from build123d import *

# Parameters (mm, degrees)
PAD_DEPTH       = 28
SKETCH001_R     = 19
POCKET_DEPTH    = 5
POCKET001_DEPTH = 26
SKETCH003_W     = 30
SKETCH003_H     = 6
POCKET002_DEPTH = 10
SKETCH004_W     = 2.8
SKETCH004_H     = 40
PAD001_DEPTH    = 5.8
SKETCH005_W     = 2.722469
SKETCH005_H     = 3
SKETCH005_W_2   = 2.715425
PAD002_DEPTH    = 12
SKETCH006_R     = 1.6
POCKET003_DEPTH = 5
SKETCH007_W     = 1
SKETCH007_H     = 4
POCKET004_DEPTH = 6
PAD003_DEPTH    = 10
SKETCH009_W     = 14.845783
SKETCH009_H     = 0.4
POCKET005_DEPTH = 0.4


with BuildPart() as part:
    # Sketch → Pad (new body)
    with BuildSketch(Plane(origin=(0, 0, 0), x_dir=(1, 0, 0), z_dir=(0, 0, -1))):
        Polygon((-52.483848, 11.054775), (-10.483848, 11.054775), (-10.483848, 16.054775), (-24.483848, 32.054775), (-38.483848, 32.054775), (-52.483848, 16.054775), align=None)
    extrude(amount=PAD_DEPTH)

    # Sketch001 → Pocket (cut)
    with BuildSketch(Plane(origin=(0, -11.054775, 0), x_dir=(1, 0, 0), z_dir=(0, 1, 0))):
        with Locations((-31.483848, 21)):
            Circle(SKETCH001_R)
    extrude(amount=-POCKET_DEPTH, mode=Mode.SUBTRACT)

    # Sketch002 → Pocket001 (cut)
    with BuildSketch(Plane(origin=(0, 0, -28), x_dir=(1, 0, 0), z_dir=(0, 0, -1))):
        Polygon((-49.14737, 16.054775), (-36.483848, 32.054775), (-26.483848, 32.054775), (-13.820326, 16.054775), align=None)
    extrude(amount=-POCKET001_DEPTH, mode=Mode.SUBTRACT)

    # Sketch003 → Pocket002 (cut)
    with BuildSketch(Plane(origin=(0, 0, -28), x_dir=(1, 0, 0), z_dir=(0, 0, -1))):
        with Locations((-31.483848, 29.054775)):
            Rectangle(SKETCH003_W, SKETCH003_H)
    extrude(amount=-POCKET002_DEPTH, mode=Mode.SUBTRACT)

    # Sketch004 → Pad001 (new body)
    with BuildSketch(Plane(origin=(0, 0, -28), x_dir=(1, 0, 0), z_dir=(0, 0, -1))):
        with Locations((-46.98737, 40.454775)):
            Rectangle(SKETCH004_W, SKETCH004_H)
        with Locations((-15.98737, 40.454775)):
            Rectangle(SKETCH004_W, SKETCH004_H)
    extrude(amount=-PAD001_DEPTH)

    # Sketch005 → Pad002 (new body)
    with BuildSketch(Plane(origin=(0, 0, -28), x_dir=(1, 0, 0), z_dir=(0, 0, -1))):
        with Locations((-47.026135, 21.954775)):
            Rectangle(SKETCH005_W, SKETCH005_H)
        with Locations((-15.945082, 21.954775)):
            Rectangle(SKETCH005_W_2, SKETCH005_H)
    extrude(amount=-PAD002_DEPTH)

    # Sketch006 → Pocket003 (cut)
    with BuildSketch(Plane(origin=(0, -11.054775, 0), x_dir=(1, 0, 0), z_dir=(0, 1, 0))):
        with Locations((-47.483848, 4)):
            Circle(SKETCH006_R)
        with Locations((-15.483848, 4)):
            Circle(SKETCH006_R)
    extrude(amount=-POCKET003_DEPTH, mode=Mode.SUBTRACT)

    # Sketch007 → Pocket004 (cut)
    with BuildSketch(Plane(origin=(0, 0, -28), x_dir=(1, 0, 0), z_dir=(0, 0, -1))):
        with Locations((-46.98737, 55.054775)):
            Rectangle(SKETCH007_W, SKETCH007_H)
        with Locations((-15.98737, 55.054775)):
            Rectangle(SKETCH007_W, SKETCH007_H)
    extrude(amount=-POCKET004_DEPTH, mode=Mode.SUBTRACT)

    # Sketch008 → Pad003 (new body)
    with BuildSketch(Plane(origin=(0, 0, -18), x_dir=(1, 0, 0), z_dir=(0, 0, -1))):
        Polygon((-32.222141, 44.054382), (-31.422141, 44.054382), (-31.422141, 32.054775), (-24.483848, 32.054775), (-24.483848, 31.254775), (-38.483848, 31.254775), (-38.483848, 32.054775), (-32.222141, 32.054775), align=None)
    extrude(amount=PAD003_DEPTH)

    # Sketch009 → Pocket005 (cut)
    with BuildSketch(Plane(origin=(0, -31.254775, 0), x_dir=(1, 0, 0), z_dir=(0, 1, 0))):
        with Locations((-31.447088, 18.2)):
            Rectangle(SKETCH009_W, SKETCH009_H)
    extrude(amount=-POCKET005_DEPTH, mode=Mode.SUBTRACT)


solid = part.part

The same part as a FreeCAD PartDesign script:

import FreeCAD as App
import Part
import Sketcher
from FreeCAD import Vector
Q = App.Units.Quantity

doc = App.newDocument("Part")
body = doc.addObject("PartDesign::Body", "Body")

sketch1 = body.newObject("Sketcher::SketchObject", "Sketch")
sketch1.AttachmentSupport = (doc.getObject("XY_Plane"), [""])
sketch1.MapMode = "FlatFace"
sketch1.addGeometry(Part.LineSegment(Vector(-52, -11, 0), Vector(-10, -11, 0)), False)
sketch1.addGeometry(Part.LineSegment(Vector(-10, -11, 0), Vector(-10, -16, 0)), False)
sketch1.addGeometry(Part.LineSegment(Vector(-10, -16, 0), Vector(-24, -32, 0)), False)
sketch1.addGeometry(Part.LineSegment(Vector(-24, -32, 0), Vector(-38, -32, 0)), False)
sketch1.addGeometry(Part.LineSegment(Vector(-38, -32, 0), Vector(-52, -16, 0)), False)
sketch1.addGeometry(Part.LineSegment(Vector(-52, -16, 0), Vector(-52, -11, 0)), False)
sketch1.addConstraint(Sketcher.Constraint("Coincident", 0, 2, 1, 1))
sketch1.addConstraint(Sketcher.Constraint("Coincident", 1, 2, 2, 1))
sketch1.addConstraint(Sketcher.Constraint("Coincident", 2, 2, 3, 1))
sketch1.addConstraint(Sketcher.Constraint("Coincident", 3, 2, 4, 1))
sketch1.addConstraint(Sketcher.Constraint("Coincident", 4, 2, 5, 1))
sketch1.addConstraint(Sketcher.Constraint("Coincident", 5, 2, 0, 1))
sketch1.addConstraint(Sketcher.Constraint("Horizontal", 0))
sketch1.addConstraint(Sketcher.Constraint("Vertical", 1))
sketch1.addConstraint(Sketcher.Constraint("Horizontal", 3))
sketch1.addConstraint(Sketcher.Constraint("Vertical", 5))
sketch1.addConstraint(Sketcher.Constraint("Horizontal", 1, 2, 4, 2))
sketch1.addConstraint(Sketcher.Constraint("Equal", 2, 4))
sketch1.addConstraint(Sketcher.Constraint("DistanceX", 0, 1, 0, 2, Q("42 mm")))
sketch1.addConstraint(Sketcher.Constraint("DistanceX", 3, 2, 3, 1, Q("14 mm")))
sketch1.addConstraint(Sketcher.Constraint("DistanceY", 1, 2, 1, 1, Q("5 mm")))
sketch1.addConstraint(Sketcher.Constraint("DistanceY", 2, 2, 1, 2, Q("16 mm")))
sketch1.addConstraint(Sketcher.Constraint("DistanceX", 3, 2, -1, 1, Q("38.483848 mm")))
sketch1.addConstraint(Sketcher.Constraint("DistanceY", 0, 2, -1, 1, Q("11.054775 mm")))
pad1 = body.newObject("PartDesign::Pad", "Pad")
pad1.Profile = sketch1
pad1.Length = 28
pad1.Reversed = True

sketch2 = body.newObject("Sketcher::SketchObject", "Sketch001")
sketch2.AttachmentSupport = (doc.getObject("XZ_Plane"), [""])
sketch2.MapMode = "FlatFace"
sketch2.AttachmentOffset = App.Placement(Vector(0, 0, 11.054775), App.Rotation())
sketch2.addGeometry(Part.Circle(Vector(-31, -21, 0), Vector(0, 0, 1), 19), False)
sketch2.addConstraint(Sketcher.Constraint("Diameter", 0, Q("38 mm")))
sketch2.addConstraint(Sketcher.Constraint("DistanceY", 0, 3, -1, 1, Q("21 mm")))
sketch2.addConstraint(Sketcher.Constraint("DistanceX", 0, 3, -1, 1, Q("31.483848 mm")))
pocket1 = body.newObject("PartDesign::Pocket", "Pocket")
pocket1.Profile = sketch2
pocket1.Length = 5
pocket1.Reversed = True

sketch3 = body.newObject("Sketcher::SketchObject", "Sketch002")
sketch3.AttachmentSupport = (doc.getObject("XY_Plane"), [""])
sketch3.MapMode = "FlatFace"
sketch3.AttachmentOffset = App.Placement(Vector(0, 0, -28), App.Rotation())
sketch3.addGeometry(Part.LineSegment(Vector(-36, -32, 0), Vector(-49, -16, 0)), False)
sketch3.addGeometry(Part.LineSegment(Vector(-49, -16, 0), Vector(-14, -16, 0)), False)
sketch3.addGeometry(Part.LineSegment(Vector(-14, -16, 0), Vector(-26, -32, 0)), False)
sketch3.addGeometry(Part.LineSegment(Vector(-26, -32, 0), Vector(-36, -32, 0)), False)
sketch3.addConstraint(Sketcher.Constraint("Coincident", 0, 2, 1, 1))
sketch3.addConstraint(Sketcher.Constraint("Coincident", 1, 2, 2, 1))
sketch3.addConstraint(Sketcher.Constraint("Coincident", 2, 2, 3, 1))
sketch3.addConstraint(Sketcher.Constraint("Coincident", 3, 2, 0, 1))
sketch3.addConstraint(Sketcher.Constraint("Horizontal", 1))
sketch3.addConstraint(Sketcher.Constraint("Horizontal", 3))
sketch3.addConstraint(Sketcher.Constraint("Equal", 0, 2))
sketch3.addConstraint(Sketcher.Constraint("DistanceX", 3, 2, 3, 1, Q("10 mm")))
sketch3.addConstraint(Sketcher.Constraint("DistanceY", 2, 2, 1, 2, Q("16 mm")))
sketch3.addConstraint(Sketcher.Constraint("Distance", 0, Q("20.405019 mm")))
sketch3.addConstraint(Sketcher.Constraint("DistanceX", 0, 2, -1, 1, Q("49.14737 mm")))
sketch3.addConstraint(Sketcher.Constraint("DistanceY", 0, 2, -1, 1, Q("16.054775 mm")))
pocket2 = body.newObject("PartDesign::Pocket", "Pocket001")
pocket2.Profile = sketch3
pocket2.Length = 26
pocket2.Reversed = True

sketch4 = body.newObject("Sketcher::SketchObject", "Sketch003")
sketch4.AttachmentSupport = (doc.getObject("XY_Plane"), [""])
sketch4.MapMode = "FlatFace"
sketch4.AttachmentOffset = App.Placement(Vector(0, 0, -28), App.Rotation())
sketch4.addGeometry(Part.LineSegment(Vector(-46, -32, 0), Vector(-46, -26, 0)), False)
sketch4.addGeometry(Part.LineSegment(Vector(-46, -26, 0), Vector(-16, -26, 0)), False)
sketch4.addGeometry(Part.LineSegment(Vector(-16, -26, 0), Vector(-16, -32, 0)), False)
sketch4.addGeometry(Part.LineSegment(Vector(-16, -32, 0), Vector(-46, -32, 0)), False)
sketch4.addConstraint(Sketcher.Constraint("Coincident", 0, 2, 1, 1))
sketch4.addConstraint(Sketcher.Constraint("Coincident", 1, 2, 2, 1))
sketch4.addConstraint(Sketcher.Constraint("Coincident", 2, 2, 3, 1))
sketch4.addConstraint(Sketcher.Constraint("Coincident", 3, 2, 0, 1))
sketch4.addConstraint(Sketcher.Constraint("Vertical", 0))
sketch4.addConstraint(Sketcher.Constraint("Horizontal", 1))
sketch4.addConstraint(Sketcher.Constraint("Vertical", 2))
sketch4.addConstraint(Sketcher.Constraint("Horizontal", 3))
sketch4.addConstraint(Sketcher.Constraint("DistanceX", 1, 1, 1, 2, Q("30 mm")))
sketch4.addConstraint(Sketcher.Constraint("DistanceY", 0, 1, 0, 2, Q("6 mm")))
sketch4.addConstraint(Sketcher.Constraint("DistanceX", 0, 2, -1, 1, Q("46.483848 mm")))
sketch4.addConstraint(Sketcher.Constraint("DistanceY", 0, 2, -1, 1, Q("26.054775 mm")))
pocket3 = body.newObject("PartDesign::Pocket", "Pocket002")
pocket3.Profile = sketch4
pocket3.Length = 10
pocket3.Reversed = True

sketch5 = body.newObject("Sketcher::SketchObject", "Sketch004")
sketch5.AttachmentSupport = (doc.getObject("XY_Plane"), [""])
sketch5.MapMode = "FlatFace"
sketch5.AttachmentOffset = App.Placement(Vector(0, 0, -28), App.Rotation())
sketch5.addGeometry(Part.LineSegment(Vector(-48.4, -60.5, 0), Vector(-48.4, -20.5, 0)), False)
sketch5.addGeometry(Part.LineSegment(Vector(-48.4, -20.5, 0), Vector(-45.6, -20.5, 0)), False)
sketch5.addGeometry(Part.LineSegment(Vector(-45.6, -20.5, 0), Vector(-45.6, -60.5, 0)), False)
sketch5.addGeometry(Part.LineSegment(Vector(-45.6, -60.5, 0), Vector(-48.4, -60.5, 0)), False)
sketch5.addGeometry(Part.LineSegment(Vector(-17.4, -60.5, 0), Vector(-17.4, -20.5, 0)), False)
sketch5.addGeometry(Part.LineSegment(Vector(-17.4, -20.5, 0), Vector(-14.6, -20.5, 0)), False)
sketch5.addGeometry(Part.LineSegment(Vector(-14.6, -20.5, 0), Vector(-14.6, -60.5, 0)), False)
sketch5.addGeometry(Part.LineSegment(Vector(-14.6, -60.5, 0), Vector(-17.4, -60.5, 0)), False)
sketch5.addConstraint(Sketcher.Constraint("Coincident", 0, 2, 1, 1))
sketch5.addConstraint(Sketcher.Constraint("Coincident", 1, 2, 2, 1))
sketch5.addConstraint(Sketcher.Constraint("Coincident", 2, 2, 3, 1))
sketch5.addConstraint(Sketcher.Constraint("Coincident", 3, 2, 0, 1))
sketch5.addConstraint(Sketcher.Constraint("Coincident", 4, 2, 5, 1))
sketch5.addConstraint(Sketcher.Constraint("Coincident", 5, 2, 6, 1))
sketch5.addConstraint(Sketcher.Constraint("Coincident", 6, 2, 7, 1))
sketch5.addConstraint(Sketcher.Constraint("Coincident", 7, 2, 4, 1))
sketch5.addConstraint(Sketcher.Constraint("Vertical", 0))
sketch5.addConstraint(Sketcher.Constraint("Horizontal", 1))
sketch5.addConstraint(Sketcher.Constraint("Vertical", 2))
sketch5.addConstraint(Sketcher.Constraint("Horizontal", 3))
sketch5.addConstraint(Sketcher.Constraint("Vertical", 4))
sketch5.addConstraint(Sketcher.Constraint("Horizontal", 5))
sketch5.addConstraint(Sketcher.Constraint("Vertical", 6))
sketch5.addConstraint(Sketcher.Constraint("Horizontal", 7))
sketch5.addConstraint(Sketcher.Constraint("Horizontal", 1, 2, 4, 2))
sketch5.addConstraint(Sketcher.Constraint("Horizontal", 3, 2, 6, 2))
sketch5.addConstraint(Sketcher.Constraint("Equal", 3, 5))
sketch5.addConstraint(Sketcher.Constraint("DistanceY", 0, 1, 0, 2, Q("40 mm")))
sketch5.addConstraint(Sketcher.Constraint("DistanceX", 1, 1, 1, 2, Q("2.8 mm")))
sketch5.addConstraint(Sketcher.Constraint("DistanceX", 0, 2, 4, 2, Q("31 mm")))
sketch5.addConstraint(Sketcher.Constraint("DistanceX", 0, 2, -1, 1, Q("48.38737 mm")))
sketch5.addConstraint(Sketcher.Constraint("DistanceY", 0, 2, -1, 1, Q("20.454775 mm")))
pad2 = body.newObject("PartDesign::Pad", "Pad001")
pad2.Profile = sketch5
pad2.Length = 5.8

sketch6 = body.newObject("Sketcher::SketchObject", "Sketch005")
sketch6.AttachmentSupport = (doc.getObject("XY_Plane"), [""])
sketch6.MapMode = "FlatFace"
sketch6.AttachmentOffset = App.Placement(Vector(0, 0, -28), App.Rotation())
sketch6.addGeometry(Part.LineSegment(Vector(-48.4, -23.5, 0), Vector(-48.4, -20.5, 0)), False)
sketch6.addGeometry(Part.LineSegment(Vector(-48.4, -20.5, 0), Vector(-45.7, -20.5, 0)), False)
sketch6.addGeometry(Part.LineSegment(Vector(-45.7, -20.5, 0), Vector(-45.7, -23.5, 0)), False)
sketch6.addGeometry(Part.LineSegment(Vector(-45.7, -23.5, 0), Vector(-48.4, -23.5, 0)), False)
sketch6.addGeometry(Part.LineSegment(Vector(-17.3, -23.5, 0), Vector(-17.3, -20.5, 0)), False)
sketch6.addGeometry(Part.LineSegment(Vector(-17.3, -20.5, 0), Vector(-14.6, -20.5, 0)), False)
sketch6.addGeometry(Part.LineSegment(Vector(-14.6, -20.5, 0), Vector(-14.6, -23.5, 0)), False)
sketch6.addGeometry(Part.LineSegment(Vector(-14.6, -23.5, 0), Vector(-17.3, -23.5, 0)), False)
sketch6.addConstraint(Sketcher.Constraint("Coincident", 0, 2, 1, 1))
sketch6.addConstraint(Sketcher.Constraint("Coincident", 1, 2, 2, 1))
sketch6.addConstraint(Sketcher.Constraint("Coincident", 2, 2, 3, 1))
sketch6.addConstraint(Sketcher.Constraint("Coincident", 3, 2, 0, 1))
sketch6.addConstraint(Sketcher.Constraint("Coincident", 4, 2, 5, 1))
sketch6.addConstraint(Sketcher.Constraint("Coincident", 5, 2, 6, 1))
sketch6.addConstraint(Sketcher.Constraint("Coincident", 6, 2, 7, 1))
sketch6.addConstraint(Sketcher.Constraint("Coincident", 7, 2, 4, 1))
sketch6.addConstraint(Sketcher.Constraint("Vertical", 0))
sketch6.addConstraint(Sketcher.Constraint("Horizontal", 1))
sketch6.addConstraint(Sketcher.Constraint("Vertical", 2))
sketch6.addConstraint(Sketcher.Constraint("Horizontal", 3))
sketch6.addConstraint(Sketcher.Constraint("Vertical", 4))
sketch6.addConstraint(Sketcher.Constraint("Horizontal", 5))
sketch6.addConstraint(Sketcher.Constraint("Vertical", 6))
sketch6.addConstraint(Sketcher.Constraint("Horizontal", 7))
sketch6.addConstraint(Sketcher.Constraint("Horizontal", 1, 2, 4, 2))
sketch6.addConstraint(Sketcher.Constraint("Horizontal", 3, 2, 6, 2))
sketch6.addConstraint(Sketcher.Constraint("DistanceY", 0, 1, 0, 2, Q("3 mm")))
sketch6.addConstraint(Sketcher.Constraint("DistanceX", 0, 2, 5, 2, Q("33.8 mm")))
sketch6.addConstraint(Sketcher.Constraint("DistanceX", 1, 1, 1, 2, Q("2.722469 mm")))
sketch6.addConstraint(Sketcher.Constraint("DistanceX", 1, 2, -1, 1, Q("45.664901 mm")))
sketch6.addConstraint(Sketcher.Constraint("DistanceX", 5, 1, 5, 2, Q("2.715425 mm")))
sketch6.addConstraint(Sketcher.Constraint("DistanceY", 0, 2, -1, 1, Q("20.454775 mm")))
pad3 = body.newObject("PartDesign::Pad", "Pad002")
pad3.Profile = sketch6
pad3.Length = 12

sketch7 = body.newObject("Sketcher::SketchObject", "Sketch006")
sketch7.AttachmentSupport = (doc.getObject("XZ_Plane"), [""])
sketch7.MapMode = "FlatFace"
sketch7.AttachmentOffset = App.Placement(Vector(0, 0, 11.054775), App.Rotation())
sketch7.addGeometry(Part.Circle(Vector(-47.5, -4, 0), Vector(0, 0, 1), 1.6), False)
sketch7.addGeometry(Part.Circle(Vector(-15.5, -4, 0), Vector(0, 0, 1), 1.6), False)
sketch7.addConstraint(Sketcher.Constraint("Equal", 0, 1))
sketch7.addConstraint(Sketcher.Constraint("Horizontal", 0, 3, 1, 3))
sketch7.addConstraint(Sketcher.Constraint("Diameter", 0, Q("3.2 mm")))
sketch7.addConstraint(Sketcher.Constraint("DistanceY", 0, 3, -1, 1, Q("4 mm")))
sketch7.addConstraint(Sketcher.Constraint("DistanceX", 0, 3, 1, 3, Q("32 mm")))
sketch7.addConstraint(Sketcher.Constraint("DistanceX", 0, 3, -1, 1, Q("47.483848 mm")))
pocket4 = body.newObject("PartDesign::Pocket", "Pocket003")
pocket4.Profile = sketch7
pocket4.Length = 5
pocket4.Reversed = True

sketch8 = body.newObject("Sketcher::SketchObject", "Sketch007")
sketch8.AttachmentSupport = (doc.getObject("XY_Plane"), [""])
sketch8.MapMode = "FlatFace"
sketch8.AttachmentOffset = App.Placement(Vector(0, 0, -28), App.Rotation())
sketch8.addGeometry(Part.LineSegment(Vector(-47.5, -57.1, 0), Vector(-47.5, -53.1, 0)), False)
sketch8.addGeometry(Part.LineSegment(Vector(-47.5, -53.1, 0), Vector(-46.5, -53.1, 0)), False)
sketch8.addGeometry(Part.LineSegment(Vector(-46.5, -53.1, 0), Vector(-46.5, -57.1, 0)), False)
sketch8.addGeometry(Part.LineSegment(Vector(-46.5, -57.1, 0), Vector(-47.5, -57.1, 0)), False)
sketch8.addGeometry(Part.LineSegment(Vector(-16.5, -57.1, 0), Vector(-16.5, -53.1, 0)), False)
sketch8.addGeometry(Part.LineSegment(Vector(-16.5, -53.1, 0), Vector(-15.5, -53.1, 0)), False)
sketch8.addGeometry(Part.LineSegment(Vector(-15.5, -53.1, 0), Vector(-15.5, -57.1, 0)), False)
sketch8.addGeometry(Part.LineSegment(Vector(-15.5, -57.1, 0), Vector(-16.5, -57.1, 0)), False)
sketch8.addConstraint(Sketcher.Constraint("Coincident", 0, 2, 1, 1))
sketch8.addConstraint(Sketcher.Constraint("Coincident", 1, 2, 2, 1))
sketch8.addConstraint(Sketcher.Constraint("Coincident", 2, 2, 3, 1))
sketch8.addConstraint(Sketcher.Constraint("Coincident", 3, 2, 0, 1))
sketch8.addConstraint(Sketcher.Constraint("Coincident", 4, 2, 5, 1))
sketch8.addConstraint(Sketcher.Constraint("Coincident", 5, 2, 6, 1))
sketch8.addConstraint(Sketcher.Constraint("Coincident", 6, 2, 7, 1))
sketch8.addConstraint(Sketcher.Constraint("Coincident", 7, 2, 4, 1))
sketch8.addConstraint(Sketcher.Constraint("Vertical", 0))
sketch8.addConstraint(Sketcher.Constraint("Horizontal", 1))
sketch8.addConstraint(Sketcher.Constraint("Vertical", 2))
sketch8.addConstraint(Sketcher.Constraint("Horizontal", 3))
sketch8.addConstraint(Sketcher.Constraint("Vertical", 4))
sketch8.addConstraint(Sketcher.Constraint("Horizontal", 5))
sketch8.addConstraint(Sketcher.Constraint("Vertical", 6))
sketch8.addConstraint(Sketcher.Constraint("Horizontal", 7))
sketch8.addConstraint(Sketcher.Constraint("Horizontal", 1, 2, 4, 2))
sketch8.addConstraint(Sketcher.Constraint("Horizontal", 3, 2, 6, 2))
sketch8.addConstraint(Sketcher.Constraint("Equal", 3, 5))
sketch8.addConstraint(Sketcher.Constraint("DistanceX", 1, 1, 1, 2, Q("1 mm")))
sketch8.addConstraint(Sketcher.Constraint("DistanceY", 0, 1, 0, 2, Q("4 mm")))
sketch8.addConstraint(Sketcher.Constraint("DistanceX", 1, 2, 4, 2, Q("30 mm")))
sketch8.addConstraint(Sketcher.Constraint("DistanceX", 0, 2, -1, 1, Q("47.48737 mm")))
sketch8.addConstraint(Sketcher.Constraint("DistanceY", 0, 2, -1, 1, Q("53.054775 mm")))
pocket5 = body.newObject("PartDesign::Pocket", "Pocket004")
pocket5.Profile = sketch8
pocket5.Length = 6
pocket5.Reversed = True

sketch9 = body.newObject("Sketcher::SketchObject", "Sketch008")
sketch9.AttachmentSupport = (doc.getObject("XY_Plane"), [""])
sketch9.MapMode = "FlatFace"
sketch9.AttachmentOffset = App.Placement(Vector(0, 0, -18), App.Rotation())
sketch9.addGeometry(Part.LineSegment(Vector(-31.4, -44.1, 0), Vector(-32.2, -44.1, 0)), False)
sketch9.addGeometry(Part.LineSegment(Vector(-32.2, -44.1, 0), Vector(-32.2, -32.1, 0)), False)
sketch9.addGeometry(Part.LineSegment(Vector(-32.2, -32.1, 0), Vector(-38.5, -32.1, 0)), False)
sketch9.addGeometry(Part.LineSegment(Vector(-38.5, -32.1, 0), Vector(-38.5, -31.3, 0)), False)
sketch9.addGeometry(Part.LineSegment(Vector(-38.5, -31.3, 0), Vector(-24.5, -31.3, 0)), False)
sketch9.addGeometry(Part.LineSegment(Vector(-24.5, -31.3, 0), Vector(-24.5, -32.1, 0)), False)
sketch9.addGeometry(Part.LineSegment(Vector(-24.5, -32.1, 0), Vector(-31.4, -32.1, 0)), False)
sketch9.addGeometry(Part.LineSegment(Vector(-31.4, -32.1, 0), Vector(-31.4, -44.1, 0)), False)
sketch9.addConstraint(Sketcher.Constraint("Coincident", 0, 2, 1, 1))
sketch9.addConstraint(Sketcher.Constraint("Coincident", 1, 2, 2, 1))
sketch9.addConstraint(Sketcher.Constraint("Coincident", 2, 2, 3, 1))
sketch9.addConstraint(Sketcher.Constraint("Coincident", 3, 2, 4, 1))
sketch9.addConstraint(Sketcher.Constraint("Coincident", 4, 2, 5, 1))
sketch9.addConstraint(Sketcher.Constraint("Coincident", 5, 2, 6, 1))
sketch9.addConstraint(Sketcher.Constraint("Coincident", 6, 2, 7, 1))
sketch9.addConstraint(Sketcher.Constraint("Coincident", 7, 2, 0, 1))
sketch9.addConstraint(Sketcher.Constraint("Horizontal", 0))
sketch9.addConstraint(Sketcher.Constraint("Vertical", 1))
sketch9.addConstraint(Sketcher.Constraint("Horizontal", 2))
sketch9.addConstraint(Sketcher.Constraint("Vertical", 3))
sketch9.addConstraint(Sketcher.Constraint("Horizontal", 4))
sketch9.addConstraint(Sketcher.Constraint("Vertical", 5))
sketch9.addConstraint(Sketcher.Constraint("Horizontal", 6))
sketch9.addConstraint(Sketcher.Constraint("Vertical", 7))
sketch9.addConstraint(Sketcher.Constraint("Horizontal", 2, 2, 5, 2))
sketch9.addConstraint(Sketcher.Constraint("Equal", 0, 3))
sketch9.addConstraint(Sketcher.Constraint("DistanceX", 4, 1, 4, 2, Q("14 mm")))
sketch9.addConstraint(Sketcher.Constraint("DistanceX", 0, 2, 0, 1, Q("0.8 mm")))
sketch9.addConstraint(Sketcher.Constraint("DistanceX", 2, 2, 2, 1, Q("6.261707 mm")))
sketch9.addConstraint(Sketcher.Constraint("DistanceY", 1, 1, 1, 2, Q("11.999607 mm")))
sketch9.addConstraint(Sketcher.Constraint("DistanceX", 0, 2, -1, 1, Q("32.222141 mm")))
sketch9.addConstraint(Sketcher.Constraint("DistanceY", 0, 2, -1, 1, Q("44.054382 mm")))
pad4 = body.newObject("PartDesign::Pad", "Pad003")
pad4.Profile = sketch9
pad4.Length = 10
pad4.Reversed = True

sketch10 = body.newObject("Sketcher::SketchObject", "Sketch009")
sketch10.AttachmentSupport = (doc.getObject("XZ_Plane"), [""])
sketch10.MapMode = "FlatFace"
sketch10.AttachmentOffset = App.Placement(Vector(0, 0, 31.254775), App.Rotation())
sketch10.addGeometry(Part.LineSegment(Vector(-38.87, -18.4, 0), Vector(-38.87, -18, 0)), False)
sketch10.addGeometry(Part.LineSegment(Vector(-38.87, -18, 0), Vector(-24.02, -18, 0)), False)
sketch10.addGeometry(Part.LineSegment(Vector(-24.02, -18, 0), Vector(-24.02, -18.4, 0)), False)
sketch10.addGeometry(Part.LineSegment(Vector(-24.02, -18.4, 0), Vector(-38.87, -18.4, 0)), False)
sketch10.addConstraint(Sketcher.Constraint("Coincident", 0, 2, 1, 1))
sketch10.addConstraint(Sketcher.Constraint("Coincident", 1, 2, 2, 1))
sketch10.addConstraint(Sketcher.Constraint("Coincident", 2, 2, 3, 1))
sketch10.addConstraint(Sketcher.Constraint("Coincident", 3, 2, 0, 1))
sketch10.addConstraint(Sketcher.Constraint("Vertical", 0))
sketch10.addConstraint(Sketcher.Constraint("Horizontal", 1))
sketch10.addConstraint(Sketcher.Constraint("Vertical", 2))
sketch10.addConstraint(Sketcher.Constraint("Horizontal", 3))
sketch10.addConstraint(Sketcher.Constraint("DistanceY", 0, 1, 0, 2, Q("0.4 mm")))
sketch10.addConstraint(Sketcher.Constraint("DistanceY", 0, 2, -1, 1, Q("18 mm")))
sketch10.addConstraint(Sketcher.Constraint("DistanceX", 1, 1, 1, 2, Q("14.845783 mm")))
sketch10.addConstraint(Sketcher.Constraint("DistanceX", 0, 2, -1, 1, Q("38.869979 mm")))
pocket6 = body.newObject("PartDesign::Pocket", "Pocket005")
pocket6.Profile = sketch10
pocket6.Length = 0.4
pocket6.Reversed = True

doc.recompute()
